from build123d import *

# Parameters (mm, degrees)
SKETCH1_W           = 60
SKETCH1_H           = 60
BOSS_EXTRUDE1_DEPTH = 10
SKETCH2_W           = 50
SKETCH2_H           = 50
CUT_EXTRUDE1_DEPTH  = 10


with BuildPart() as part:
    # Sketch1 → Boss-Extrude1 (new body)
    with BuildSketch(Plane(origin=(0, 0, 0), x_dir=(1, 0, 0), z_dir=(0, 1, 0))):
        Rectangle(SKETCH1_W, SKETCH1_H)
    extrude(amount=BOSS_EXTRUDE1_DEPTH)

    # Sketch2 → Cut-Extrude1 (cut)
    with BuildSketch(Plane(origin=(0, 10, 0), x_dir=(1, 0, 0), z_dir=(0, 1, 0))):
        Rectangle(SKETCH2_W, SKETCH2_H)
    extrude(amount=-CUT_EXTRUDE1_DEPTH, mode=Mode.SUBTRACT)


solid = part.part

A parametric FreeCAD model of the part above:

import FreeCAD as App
import Part
import Sketcher

V = App.Vector
Q = App.Units.Quantity

doc = App.newDocument("Part")
params = doc.addObject("Spreadsheet::Sheet", "Params")
for row, (alias, value) in enumerate([
    ("sketch1_width", "60 mm"),
    ("pad1_length", "10 mm"),
    ("sketch2_width", "50 mm"),
    ("pocket1_length", "10 mm"),
], start=1):
    params.set(f"A{row}", alias)
    params.set(f"B{row}", "=" + value)
    params.setAlias(f"B{row}", alias)

body = doc.addObject("PartDesign::Body", "Body")

sketch1 = doc.addObject("Sketcher::SketchObject", "Sketch")
body.addObject(sketch1)
sketch1.AttachmentSupport = (doc.XZ_Plane, [""])
sketch1.MapMode = "FlatFace"
sketch1.addGeometry([
    Part.LineSegment(V(-30, -30, 0), V(-30, 30, 0)),
    Part.LineSegment(V(-30, 30, 0), V(30, 30, 0)),
    Part.LineSegment(V(30, 30, 0), V(30, -30, 0)),
    Part.LineSegment(V(30, -30, 0), V(-30, -30, 0)),
], False)
sketch1.addConstraint([
    Sketcher.Constraint("Coincident", 0, 2, 1, 1),
    Sketcher.Constraint("Coincident", 1, 2, 2, 1),
    Sketcher.Constraint("Coincident", 2, 2, 3, 1),
    Sketcher.Constraint("Coincident", 3, 2, 0, 1),
    Sketcher.Constraint("Vertical", 0),
    Sketcher.Constraint("Horizontal", 1),
    Sketcher.Constraint("Vertical", 2),
    Sketcher.Constraint("Horizontal", 3),
    Sketcher.Constraint("Symmetric", 0, 2, 2, 2, -1, 1),
    Sketcher.Constraint("Equal", 3, 0),
    Sketcher.Constraint("DistanceX", 1, 1, 1, 2, Q("60 mm")),
])
sketch1.setExpression("Constraints[10]", "Params.sketch1_width")
pad1 = doc.addObject("PartDesign::Pad", "Pad")
body.addObject(pad1)
pad1.Profile = sketch1
pad1.setExpression("Length", "Params.pad1_length")
pad1.Reversed = True

sketch2 = doc.addObject("Sketcher::SketchObject", "Sketch001")
body.addObject(sketch2)
sketch2.AttachmentSupport = (doc.XZ_Plane, [""])
sketch2.MapMode = "FlatFace"
sketch2.AttachmentOffset = App.Placement(V(0, 0, -10), App.Rotation())
sketch2.addGeometry([
    Part.LineSegment(V(-25, -25, 0), V(-25, 25, 0)),
    Part.LineSegment(V(-25, 25, 0), V(25, 25, 0)),
    Part.LineSegment(V(25, 25, 0), V(25, -25, 0)),
    Part.LineSegment(V(25, -25, 0), V(-25, -25, 0)),
], False)
sketch2.addConstraint([
    Sketcher.Constraint("Coincident", 0, 2, 1, 1),
    Sketcher.Constraint("Coincident", 1, 2, 2, 1),
    Sketcher.Constraint("Coincident", 2, 2, 3, 1),
    Sketcher.Constraint("Coincident", 3, 2, 0, 1),
    Sketcher.Constraint("Vertical", 0),
    Sketcher.Constraint("Horizontal", 1),
    Sketcher.Constraint("Vertical", 2),
    Sketcher.Constraint("Horizontal", 3),
    Sketcher.Constraint("Symmetric", 0, 2, 2, 2, -1, 1),
    Sketcher.Constraint("Equal", 3, 0),
    Sketcher.Constraint("DistanceX", 1, 1, 1, 2, Q("50 mm")),
])
sketch2.setExpression("Constraints[10]", "Params.sketch2_width")
pocket1 = doc.addObject("PartDesign::Pocket", "Pocket")
body.addObject(pocket1)
pocket1.Profile = sketch2
pocket1.setExpression("Length", "Params.pocket1_length")
pocket1.Reversed = True

doc.recompute()
